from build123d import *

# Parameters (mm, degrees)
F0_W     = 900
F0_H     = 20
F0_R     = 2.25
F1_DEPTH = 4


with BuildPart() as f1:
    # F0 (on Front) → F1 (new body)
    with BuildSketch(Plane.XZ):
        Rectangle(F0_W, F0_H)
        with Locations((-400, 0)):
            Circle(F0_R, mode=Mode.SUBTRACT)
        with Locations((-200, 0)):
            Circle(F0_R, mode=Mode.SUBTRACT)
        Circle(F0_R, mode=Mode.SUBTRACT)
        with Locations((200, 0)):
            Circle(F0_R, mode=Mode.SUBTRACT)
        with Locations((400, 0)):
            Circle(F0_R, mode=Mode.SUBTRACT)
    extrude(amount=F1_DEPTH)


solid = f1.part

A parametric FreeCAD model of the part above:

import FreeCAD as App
import Part
import Sketcher
Q = App.Units.Quantity


def add_polygon(sketch, points):
    """Adds a closed chain of lines whose ends are joined by coincident constraints."""
    first, n = sketch.GeometryCount, len(points)
    for a, b in zip(points, points[1:] + points[:1]):
        sketch.addGeometry(Part.LineSegment(App.Vector(*a, 0), App.Vector(*b, 0)), False)
    for i in range(n):
        sketch.addConstraint(Sketcher.Constraint("Coincident", first + i, 2, first + (i + 1) % n, 1))

doc = App.newDocument("Part")
params = doc.addObject("Spreadsheet::Sheet", "Params")
for row, (alias, value) in enumerate([
    ("sketch1_diameter", "4.5 mm"),
    ("sketch1_width", "900 mm"),
    ("sketch1_height", "20 mm"),
    ("pad1_length", "4 mm"),
], start=1):
    params.set(f"A{row}", alias)
    params.set(f"B{row}", "=" + value)
    params.setAlias(f"B{row}", alias)

body = doc.addObject("PartDesign::Body", "Body")

sketch1 = body.newObject("Sketcher::SketchObject", "Sketch")
sketch1.AttachmentSupport = (doc.getObject("XZ_Plane"), [""])
sketch1.MapMode = "FlatFace"
add_polygon(sketch1, [(-450, 10), (-450, -10), (450, -10), (450, 10)])
sketch1.addGeometry(Part.Circle(App.Vector(-400, 0, 0), App.Vector(0, 0, 1), 2.25), False)
sketch1.addGeometry(Part.Circle(App.Vector(-200, 0, 0), App.Vector(0, 0, 1), 2.25), False)
sketch1.addGeometry(Part.Circle(App.Vector(0, 0, 0), App.Vector(0, 0, 1), 2.25), False)
sketch1.addGeometry(Part.Circle(App.Vector(200, 0, 0), App.Vector(0, 0, 1), 2.25), False)
sketch1.addGeometry(Part.Circle(App.Vector(400, 0, 0), App.Vector(0, 0, 1), 2.25), False)
sketch1.addConstraint([
    Sketcher.Constraint("Vertical", 0),
    Sketcher.Constraint("Horizontal", 1),
    Sketcher.Constraint("Vertical", 2),
    Sketcher.Constraint("Horizontal", 3),
    Sketcher.Constraint("Coincident", 6, 3, -1, 1),
    Sketcher.Constraint("Equal", 4, 5),
    Sketcher.Constraint("Equal", 5, 6),
    Sketcher.Constraint("Equal", 6, 7),
    Sketcher.Constraint("Equal", 7, 8),
    Sketcher.Constraint("Symmetric", 5, 3, 7, 3, -1, 1),
    Sketcher.Constraint("Symmetric", 4, 3, 8, 3, -1, 1),
    Sketcher.Constraint("Symmetric", 0, 2, 2, 2, -1, 1),
    Sketcher.Constraint("PointOnObject", 4, 3, -1),
    Sketcher.Constraint("PointOnObject", 5, 3, -1),
    Sketcher.Constraint("Diameter", 4, Q("4.5 mm")),
    Sketcher.Constraint("DistanceX", 1, 1, 1, 2, Q("900 mm")),
    Sketcher.Constraint("DistanceY", 0, 2, 0, 1, Q("20 mm")),
    Sketcher.Constraint("DistanceX", 4, 3, -1, 1, Q("400 mm")),
    Sketcher.Constraint("DistanceX", 5, 3, -1, 1, Q("200 mm")),
])
sketch1.setExpression("Constraints[18]", "Params.sketch1_diameter")
sketch1.setExpression("Constraints[19]", "Params.sketch1_width")
sketch1.setExpression("Constraints[20]", "Params.sketch1_height")
pad1 = body.newObject("PartDesign::Pad", "Pad")
pad1.Profile = sketch1
pad1.setExpression("Length", "Params.pad1_length")

doc.recompute()
